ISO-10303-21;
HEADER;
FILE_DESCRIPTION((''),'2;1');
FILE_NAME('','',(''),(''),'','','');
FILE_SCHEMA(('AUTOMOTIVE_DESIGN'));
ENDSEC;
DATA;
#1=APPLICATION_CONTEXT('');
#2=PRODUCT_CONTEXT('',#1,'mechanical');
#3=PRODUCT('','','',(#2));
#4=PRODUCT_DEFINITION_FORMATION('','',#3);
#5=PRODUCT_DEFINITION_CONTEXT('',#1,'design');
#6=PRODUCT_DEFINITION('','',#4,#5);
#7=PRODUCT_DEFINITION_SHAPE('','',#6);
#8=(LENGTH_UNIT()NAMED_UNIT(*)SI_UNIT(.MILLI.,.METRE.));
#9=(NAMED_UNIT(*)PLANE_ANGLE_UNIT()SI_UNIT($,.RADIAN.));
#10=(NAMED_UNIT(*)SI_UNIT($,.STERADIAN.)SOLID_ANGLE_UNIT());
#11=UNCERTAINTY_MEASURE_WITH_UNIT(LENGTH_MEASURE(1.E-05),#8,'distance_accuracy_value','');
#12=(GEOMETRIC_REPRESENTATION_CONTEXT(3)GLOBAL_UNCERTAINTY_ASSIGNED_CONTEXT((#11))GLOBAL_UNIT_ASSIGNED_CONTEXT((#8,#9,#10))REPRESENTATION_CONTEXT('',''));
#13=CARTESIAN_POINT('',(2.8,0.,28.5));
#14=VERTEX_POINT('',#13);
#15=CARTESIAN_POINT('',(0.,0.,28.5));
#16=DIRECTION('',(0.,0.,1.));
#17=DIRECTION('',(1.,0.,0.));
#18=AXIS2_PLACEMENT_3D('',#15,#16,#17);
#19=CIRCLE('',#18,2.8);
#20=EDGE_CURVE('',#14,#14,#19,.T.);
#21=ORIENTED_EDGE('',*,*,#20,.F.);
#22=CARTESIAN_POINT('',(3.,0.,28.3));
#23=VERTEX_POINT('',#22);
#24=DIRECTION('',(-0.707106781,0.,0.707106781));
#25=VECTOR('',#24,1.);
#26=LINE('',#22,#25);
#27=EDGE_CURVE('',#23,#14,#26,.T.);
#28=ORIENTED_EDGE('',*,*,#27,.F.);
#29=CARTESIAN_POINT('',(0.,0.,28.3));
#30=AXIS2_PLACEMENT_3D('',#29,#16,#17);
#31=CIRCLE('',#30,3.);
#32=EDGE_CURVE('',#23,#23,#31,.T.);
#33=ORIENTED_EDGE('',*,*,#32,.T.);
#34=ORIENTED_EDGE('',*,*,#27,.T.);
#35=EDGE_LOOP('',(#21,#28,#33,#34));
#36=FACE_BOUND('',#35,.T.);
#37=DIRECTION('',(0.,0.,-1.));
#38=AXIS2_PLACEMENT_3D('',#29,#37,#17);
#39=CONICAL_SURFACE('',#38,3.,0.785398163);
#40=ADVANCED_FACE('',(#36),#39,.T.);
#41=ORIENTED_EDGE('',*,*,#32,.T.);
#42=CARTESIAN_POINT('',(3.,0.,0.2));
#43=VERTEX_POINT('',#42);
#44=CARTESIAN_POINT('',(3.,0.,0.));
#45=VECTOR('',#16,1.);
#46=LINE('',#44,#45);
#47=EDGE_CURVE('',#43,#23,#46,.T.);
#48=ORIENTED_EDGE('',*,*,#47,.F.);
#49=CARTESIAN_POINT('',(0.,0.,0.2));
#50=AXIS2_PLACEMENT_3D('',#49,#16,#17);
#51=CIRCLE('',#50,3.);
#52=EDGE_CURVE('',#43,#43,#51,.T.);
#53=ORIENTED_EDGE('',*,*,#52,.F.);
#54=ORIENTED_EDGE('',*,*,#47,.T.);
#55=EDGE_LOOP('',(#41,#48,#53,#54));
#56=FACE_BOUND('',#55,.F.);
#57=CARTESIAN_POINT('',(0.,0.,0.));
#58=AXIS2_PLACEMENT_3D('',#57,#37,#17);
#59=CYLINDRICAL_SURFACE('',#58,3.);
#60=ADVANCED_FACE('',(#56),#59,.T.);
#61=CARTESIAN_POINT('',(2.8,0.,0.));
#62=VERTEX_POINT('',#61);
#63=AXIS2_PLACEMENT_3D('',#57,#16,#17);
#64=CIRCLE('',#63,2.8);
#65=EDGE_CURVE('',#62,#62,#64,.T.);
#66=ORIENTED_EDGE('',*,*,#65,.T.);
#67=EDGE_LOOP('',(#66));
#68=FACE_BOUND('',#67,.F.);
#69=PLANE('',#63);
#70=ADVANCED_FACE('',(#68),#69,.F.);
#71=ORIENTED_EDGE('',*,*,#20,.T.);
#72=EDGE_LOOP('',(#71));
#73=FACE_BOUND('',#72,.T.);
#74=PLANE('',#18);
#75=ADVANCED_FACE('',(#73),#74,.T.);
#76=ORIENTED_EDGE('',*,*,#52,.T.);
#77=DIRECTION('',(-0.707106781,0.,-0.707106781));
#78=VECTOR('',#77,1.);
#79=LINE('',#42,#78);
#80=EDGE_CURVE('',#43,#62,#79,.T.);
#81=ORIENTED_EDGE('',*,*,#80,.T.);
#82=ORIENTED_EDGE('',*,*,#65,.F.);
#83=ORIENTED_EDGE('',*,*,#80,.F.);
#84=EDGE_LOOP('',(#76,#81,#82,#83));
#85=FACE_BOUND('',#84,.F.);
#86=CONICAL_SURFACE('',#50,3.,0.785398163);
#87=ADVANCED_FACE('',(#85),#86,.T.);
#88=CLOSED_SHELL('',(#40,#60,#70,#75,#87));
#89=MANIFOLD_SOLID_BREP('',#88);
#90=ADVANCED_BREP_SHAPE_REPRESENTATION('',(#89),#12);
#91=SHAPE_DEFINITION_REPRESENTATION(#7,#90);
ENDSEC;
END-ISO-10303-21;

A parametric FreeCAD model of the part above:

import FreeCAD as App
import Part
import Sketcher
from FreeCAD import Vector


def edges_at(feature, points):
    """Names of the edges that pass closest to the given points."""
    edges = feature.Shape.Edges
    near = lambda p: min(range(len(edges)), key=lambda i: edges[i].distToShape(Part.Vertex(*p))[0])
    return sorted({f"Edge{near(p) + 1}" for p in points})

doc = App.newDocument("Part")
body = doc.addObject("PartDesign::Body", "Body")

# Sketch on XY plane
sketch1 = doc.addObject("Sketcher::SketchObject", "Sketch")
body.addObject(sketch1)
sketch1.AttachmentSupport = (doc.XY_Plane, [""])
sketch1.MapMode = "FlatFace"
sketch1.addGeometry(Part.Circle(Vector(0, 0, 0), Vector(0, 0, 1), 3), False)
sketch1.addConstraint([
    Sketcher.Constraint("Coincident", 0, 3, -1, 1),
    Sketcher.Constraint("Diameter", 0, 6.0),
])
pad1 = doc.addObject("PartDesign::Pad", "Pad")
body.addObject(pad1)
pad1.Profile = sketch1
pad1.Length = 28.5
doc.recompute()

chamfer = doc.addObject("PartDesign::Chamfer", "Chamfer")
body.addObject(chamfer)
chamfer.Base = (pad1, edges_at(pad1, [(-3, 0, 28.5), (-3, 0, 0)]))
chamfer.Size = 0.2

doc.recompute()
